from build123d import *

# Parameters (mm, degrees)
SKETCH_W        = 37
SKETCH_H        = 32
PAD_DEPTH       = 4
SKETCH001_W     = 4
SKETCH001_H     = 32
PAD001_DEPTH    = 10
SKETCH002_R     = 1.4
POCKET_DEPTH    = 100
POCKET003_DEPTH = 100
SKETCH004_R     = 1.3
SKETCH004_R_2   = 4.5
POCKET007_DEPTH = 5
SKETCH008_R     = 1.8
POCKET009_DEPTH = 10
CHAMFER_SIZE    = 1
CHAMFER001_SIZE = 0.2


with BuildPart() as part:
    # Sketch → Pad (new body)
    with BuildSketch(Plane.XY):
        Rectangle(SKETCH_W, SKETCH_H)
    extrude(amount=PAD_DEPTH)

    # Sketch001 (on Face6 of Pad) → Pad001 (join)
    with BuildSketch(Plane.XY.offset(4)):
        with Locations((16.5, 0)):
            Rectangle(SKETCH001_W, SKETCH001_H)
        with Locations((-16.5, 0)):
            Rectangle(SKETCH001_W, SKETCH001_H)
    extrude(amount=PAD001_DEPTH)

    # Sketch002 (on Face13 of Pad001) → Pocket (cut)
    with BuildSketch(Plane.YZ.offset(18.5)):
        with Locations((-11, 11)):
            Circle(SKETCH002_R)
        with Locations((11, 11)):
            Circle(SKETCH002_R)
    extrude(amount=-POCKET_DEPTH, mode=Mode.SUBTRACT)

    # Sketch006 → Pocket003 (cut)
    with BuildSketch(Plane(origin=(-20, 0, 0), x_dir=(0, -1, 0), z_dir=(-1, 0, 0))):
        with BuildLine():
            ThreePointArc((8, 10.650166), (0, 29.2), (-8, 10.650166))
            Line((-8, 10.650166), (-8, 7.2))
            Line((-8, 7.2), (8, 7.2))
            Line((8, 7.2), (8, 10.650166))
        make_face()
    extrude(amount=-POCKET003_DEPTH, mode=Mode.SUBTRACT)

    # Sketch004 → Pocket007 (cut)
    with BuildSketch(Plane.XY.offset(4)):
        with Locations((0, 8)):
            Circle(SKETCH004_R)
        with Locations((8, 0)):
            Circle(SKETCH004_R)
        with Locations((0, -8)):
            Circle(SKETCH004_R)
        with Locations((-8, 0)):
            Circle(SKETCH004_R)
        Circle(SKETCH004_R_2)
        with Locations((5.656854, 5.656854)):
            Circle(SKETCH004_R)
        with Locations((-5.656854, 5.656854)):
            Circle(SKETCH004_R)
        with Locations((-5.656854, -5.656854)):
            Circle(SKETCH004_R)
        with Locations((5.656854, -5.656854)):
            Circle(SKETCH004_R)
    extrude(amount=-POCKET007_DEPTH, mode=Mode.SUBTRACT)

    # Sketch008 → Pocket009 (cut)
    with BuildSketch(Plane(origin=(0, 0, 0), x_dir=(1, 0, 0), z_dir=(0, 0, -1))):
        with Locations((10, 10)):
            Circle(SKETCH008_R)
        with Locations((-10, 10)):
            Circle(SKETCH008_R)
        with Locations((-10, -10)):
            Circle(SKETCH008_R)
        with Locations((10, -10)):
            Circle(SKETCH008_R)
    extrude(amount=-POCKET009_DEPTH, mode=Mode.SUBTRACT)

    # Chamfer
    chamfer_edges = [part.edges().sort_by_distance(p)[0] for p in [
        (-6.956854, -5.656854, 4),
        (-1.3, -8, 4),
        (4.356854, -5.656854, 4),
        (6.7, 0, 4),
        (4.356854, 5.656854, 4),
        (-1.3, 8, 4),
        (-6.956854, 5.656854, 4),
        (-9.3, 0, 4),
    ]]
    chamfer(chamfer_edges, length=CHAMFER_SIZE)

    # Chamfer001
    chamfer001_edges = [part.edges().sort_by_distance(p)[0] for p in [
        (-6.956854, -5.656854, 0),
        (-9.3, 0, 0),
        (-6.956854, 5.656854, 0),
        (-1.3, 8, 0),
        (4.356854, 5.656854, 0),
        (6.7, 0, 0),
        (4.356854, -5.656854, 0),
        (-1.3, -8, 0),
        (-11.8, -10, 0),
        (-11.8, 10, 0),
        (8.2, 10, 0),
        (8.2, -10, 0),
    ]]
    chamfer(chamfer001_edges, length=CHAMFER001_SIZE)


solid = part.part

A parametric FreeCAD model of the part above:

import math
import FreeCAD as App
import Part
import Sketcher
Q = App.Units.Quantity


def edges_at(feature, points):
    """Names of the edges that pass closest to the given points."""
    edges = feature.Shape.Edges
    near = lambda p: min(range(len(edges)), key=lambda i: edges[i].distToShape(Part.Vertex(*p))[0])
    return sorted({f"Edge{near(p) + 1}" for p in points})


def add_polygon(sketch, points):
    """Adds a closed chain of lines whose ends are joined by coincident constraints."""
    first, n = sketch.GeometryCount, len(points)
    for a, b in zip(points, points[1:] + points[:1]):
        sketch.addGeometry(Part.LineSegment(App.Vector(*a, 0), App.Vector(*b, 0)), False)
    for i in range(n):
        sketch.addConstraint(Sketcher.Constraint("Coincident", first + i, 2, first + (i + 1) % n, 1))

doc = App.newDocument("Part")
params = doc.addObject("Spreadsheet::Sheet", "Params")
for row, (alias, value) in enumerate([
    ("sketch1_width", "37 mm"),
    ("sketch1_height", "32 mm"),
    ("pad1_length", "4 mm"),
    ("sketch2_width", "4 mm"),
    ("sketch2_height", "32 mm"),
    ("pad2_length", "10 mm"),
    ("sketch3_diameter", "2.8 mm"),
    ("pocket1_length", "100 mm"),
    ("sketch4_radius", "11 mm"),
    ("sketch4_width", "16 mm"),
    ("pocket2_length", "100 mm"),
    ("sketch5_diameter", "9 mm"),
    ("sketch5_diameter2", "2.6 mm"),
    ("pocket3_length", "5 mm"),
    ("sketch6_diameter", "3.6 mm"),
    ("pocket4_length", "10 mm"),
    ("chamfer_size", "1 mm"),
    ("chamfer2_size", "0.2 mm"),
], start=1):
    params.set(f"A{row}", alias)
    params.set(f"B{row}", "=" + value)
    params.setAlias(f"B{row}", alias)

body = doc.addObject("PartDesign::Body", "Body")

sketch1 = body.newObject("Sketcher::SketchObject", "Sketch")
sketch1.AttachmentSupport = (doc.getObject("XY_Plane"), [""])
sketch1.MapMode = "FlatFace"
add_polygon(sketch1, [(-18.5, 16), (-18.5, -16), (18.5, -16), (18.5, 16)])
sketch1.addConstraint(Sketcher.Constraint("Vertical", 0))
sketch1.addConstraint(Sketcher.Constraint("Horizontal", 1))
sketch1.addConstraint(Sketcher.Constraint("Vertical", 2))
sketch1.addConstraint(Sketcher.Constraint("Horizontal", 3))
sketch1.addConstraint(Sketcher.Constraint("Symmetric", 0, 2, 2, 2, -1, 1))
sketch1.addConstraint(Sketcher.Constraint("DistanceX", 1, 1, 1, 2, Q("37 mm")))
sketch1.addConstraint(Sketcher.Constraint("DistanceY", 0, 2, 0, 1, Q("32 mm")))
sketch1.setExpression("Constraints[9]", "Params.sketch1_width")
sketch1.setExpression("Constraints[10]", "Params.sketch1_height")
pad1 = body.newObject("PartDesign::Pad", "Pad")
pad1.Profile = sketch1
pad1.setExpression("Length", "Params.pad1_length")

sketch2 = body.newObject("Sketcher::SketchObject", "Sketch001")
sketch2.AttachmentSupport = (doc.getObject("XY_Plane"), [""])
sketch2.MapMode = "FlatFace"
sketch2.AttachmentOffset = App.Placement(App.Vector(0, 0, 4), App.Rotation())
add_polygon(sketch2, [(14.5, 16), (14.5, -16), (18.5, -16), (18.5, 16)])
add_polygon(sketch2, [(-18.5, 16), (-18.5, -16), (-14.5, -16), (-14.5, 16)])
sketch2.addConstraint(Sketcher.Constraint("Vertical", 0))
sketch2.addConstraint(Sketcher.Constraint("Horizontal", 1))
sketch2.addConstraint(Sketcher.Constraint("Vertical", 2))
sketch2.addConstraint(Sketcher.Constraint("Horizontal", 3))
sketch2.addConstraint(Sketcher.Constraint("Vertical", 4))
sketch2.addConstraint(Sketcher.Constraint("Horizontal", 5))
sketch2.addConstraint(Sketcher.Constraint("Vertical", 6))
sketch2.addConstraint(Sketcher.Constraint("Horizontal", 7))
sketch2.addConstraint(Sketcher.Constraint("Symmetric", 2, 2, 4, 2, -1, 1))
sketch2.addConstraint(Sketcher.Constraint("Symmetric", 0, 2, 6, 2, -1, 1))
sketch2.addConstraint(Sketcher.Constraint("Horizontal", 1, 2, 4, 2))
sketch2.addConstraint(Sketcher.Constraint("DistanceX", 1, 1, 1, 2, Q("4 mm")))
sketch2.addConstraint(Sketcher.Constraint("DistanceY", 0, 2, 0, 1, Q("32 mm")))
sketch2.addConstraint(Sketcher.Constraint("DistanceX", 4, 2, 0, 2, Q("33 mm")))
sketch2.setExpression("Constraints[19]", "Params.sketch2_width")
sketch2.setExpression("Constraints[20]", "Params.sketch2_height")
pad2 = body.newObject("PartDesign::Pad", "Pad001")
pad2.Profile = sketch2
pad2.setExpression("Length", "Params.pad2_length")

sketch3 = body.newObject("Sketcher::SketchObject", "Sketch002")
sketch3.AttachmentSupport = (doc.getObject("YZ_Plane"), [""])
sketch3.MapMode = "FlatFace"
sketch3.AttachmentOffset = App.Placement(App.Vector(0, 0, 18.5), App.Rotation())
sketch3.addGeometry(Part.Circle(App.Vector(-11, 11, 0), App.Vector(0, 0, 1), 1.4), False)
sketch3.addGeometry(Part.Circle(App.Vector(11, 11, 0), App.Vector(0, 0, 1), 1.4), False)
sketch3.addConstraint(Sketcher.Constraint("Equal", 0, 1))
sketch3.addConstraint(Sketcher.Constraint("Symmetric", 0, 3, 1, 3, -2))
sketch3.addConstraint(Sketcher.Constraint("Diameter", 0, Q("2.8 mm")))
sketch3.addConstraint(Sketcher.Constraint("DistanceX", 0, 3, -1, 1, Q("11 mm")))
sketch3.addConstraint(Sketcher.Constraint("DistanceY", -1, 1, 0, 3, Q("11 mm")))
sketch3.setExpression("Constraints[2]", "Params.sketch3_diameter")
pocket1 = body.newObject("PartDesign::Pocket", "Pocket")
pocket1.Profile = sketch3
pocket1.setExpression("Length", "Params.pocket1_length")

sketch4 = body.newObject("Sketcher::SketchObject", "Sketch003")
sketch4.AttachmentSupport = (doc.getObject("YZ_Plane"), [""])
sketch4.MapMode = "FlatFace"
sketch4.AttachmentOffset = App.Placement(App.Vector(0, 0, -20), App.Rotation())
sketch4.addGeometry(Part.ArcOfCircle(Part.Circle(App.Vector(0, 18.2, 0), App.Vector(0, 0, 1), 11), math.radians(-43.341757), math.radians(223.341757)), False)
sketch4.addGeometry(Part.LineSegment(App.Vector(8, 10.650166, 0), App.Vector(8, 7.2, 0)), False)
sketch4.addGeometry(Part.LineSegment(App.Vector(8, 7.2, 0), App.Vector(-8, 7.2, 0)), False)
sketch4.addGeometry(Part.LineSegment(App.Vector(-8, 7.2, 0), App.Vector(-8, 10.650166, 0)), False)
sketch4.addConstraint(Sketcher.Constraint("Coincident", 0, 1, 1, 1))
sketch4.addConstraint(Sketcher.Constraint("Coincident", 1, 2, 2, 1))
sketch4.addConstraint(Sketcher.Constraint("Coincident", 2, 2, 3, 1))
sketch4.addConstraint(Sketcher.Constraint("Coincident", 3, 2, 0, 2))
sketch4.addConstraint(Sketcher.Constraint("Vertical", 1))
sketch4.addConstraint(Sketcher.Constraint("Horizontal", 2))
sketch4.addConstraint(Sketcher.Constraint("Vertical", 3))
sketch4.addConstraint(Sketcher.Constraint("Symmetric", 0, 1, 3, 2, -2))
sketch4.addConstraint(Sketcher.Constraint("Radius", 0, Q("11 mm")))
sketch4.addConstraint(Sketcher.Constraint("DistanceX", 2, 2, 2, 1, Q("16 mm")))
sketch4.addConstraint(Sketcher.Constraint("DistanceY", 1, 2, 0, 3, Q("11 mm")))
sketch4.addConstraint(Sketcher.Constraint("DistanceY", -1, 1, 0, 3, Q("18.2 mm")))
sketch4.setExpression("Constraints[8]", "Params.sketch4_radius")
sketch4.setExpression("Constraints[9]", "Params.sketch4_width")
pocket2 = body.newObject("PartDesign::Pocket", "Pocket001")
pocket2.Profile = sketch4
pocket2.setExpression("Length", "Params.pocket2_length")
pocket2.Reversed = True

sketch5 = body.newObject("Sketcher::SketchObject", "Sketch004")
sketch5.AttachmentSupport = (doc.getObject("XY_Plane"), [""])
sketch5.MapMode = "FlatFace"
sketch5.AttachmentOffset = App.Placement(App.Vector(0, 0, 4), App.Rotation())
sketch5.addGeometry(Part.Circle(App.Vector(0, 8, 0), App.Vector(0, 0, 1), 1.3), False)
sketch5.addGeometry(Part.Circle(App.Vector(8, 0, 0), App.Vector(0, 0, 1), 1.3), False)
sketch5.addGeometry(Part.Circle(App.Vector(0, -8, 0), App.Vector(0, 0, 1), 1.3), False)
sketch5.addGeometry(Part.Circle(App.Vector(-8, 0, 0), App.Vector(0, 0, 1), 1.3), False)
sketch5.addGeometry(Part.Circle(App.Vector(0, 0, 0), App.Vector(0, 0, 1), 4.5), False)
sketch5.addGeometry(Part.Circle(App.Vector(5.656854, 5.656854, 0), App.Vector(0, 0, 1), 1.3), False)
sketch5.addGeometry(Part.Circle(App.Vector(-5.656854, 5.656854, 0), App.Vector(0, 0, 1), 1.3), False)
sketch5.addGeometry(Part.Circle(App.Vector(-5.656854, -5.656854, 0), App.Vector(0, 0, 1), 1.3), False)
sketch5.addGeometry(Part.Circle(App.Vector(5.656854, -5.656854, 0), App.Vector(0, 0, 1), 1.3), False)
sketch5.addConstraint(Sketcher.Constraint("Coincident", 4, 3, -1, 1))
sketch5.addConstraint(Sketcher.Constraint("Equal", 0, 1))
sketch5.addConstraint(Sketcher.Constraint("Equal", 1, 2))
sketch5.addConstraint(Sketcher.Constraint("Equal", 2, 3))
sketch5.addConstraint(Sketcher.Constraint("Equal", 3, 5))
sketch5.addConstraint(Sketcher.Constraint("Equal", 5, 6))
sketch5.addConstraint(Sketcher.Constraint("Equal", 6, 7))
sketch5.addConstraint(Sketcher.Constraint("Equal", 7, 8))
sketch5.addConstraint(Sketcher.Constraint("Symmetric", 0, 3, 2, 3, -1, 1))
sketch5.addConstraint(Sketcher.Constraint("Symmetric", 1, 3, 3, 3, -1, 1))
sketch5.addConstraint(Sketcher.Constraint("Symmetric", 5, 3, 7, 3, -1, 1))
sketch5.addConstraint(Sketcher.Constraint("Symmetric", 6, 3, 8, 3, -1, 1))
sketch5.addConstraint(Sketcher.Constraint("Symmetric", 5, 3, 6, 3, -2))
sketch5.addConstraint(Sketcher.Constraint("PointOnObject", 0, 3, -2))
sketch5.addConstraint(Sketcher.Constraint("PointOnObject", 1, 3, -1))
sketch5.addConstraint(Sketcher.Constraint("Diameter", 4, Q("9 mm")))
sketch5.addConstraint(Sketcher.Constraint("Diameter", 0, Q("2.6 mm")))
sketch5.addConstraint(Sketcher.Constraint("DistanceY", -1, 1, 0, 3, Q("8 mm")))
sketch5.addConstraint(Sketcher.Constraint("DistanceX", -1, 1, 1, 3, Q("8 mm")))
sketch5.addConstraint(Sketcher.Constraint("DistanceX", -1, 1, 5, 3, Q("5.656854 mm")))
sketch5.addConstraint(Sketcher.Constraint("DistanceY", -1, 1, 5, 3, Q("5.656854 mm")))
sketch5.setExpression("Constraints[15]", "Params.sketch5_diameter")
sketch5.setExpression("Constraints[16]", "Params.sketch5_diameter2")
pocket3 = body.newObject("PartDesign::Pocket", "Pocket002")
pocket3.Profile = sketch5
pocket3.setExpression("Length", "Params.pocket3_length")

sketch6 = body.newObject("Sketcher::SketchObject", "Sketch005")
sketch6.AttachmentSupport = (doc.getObject("XY_Plane"), [""])
sketch6.MapMode = "FlatFace"
sketch6.addGeometry(Part.Circle(App.Vector(10, -10, 0), App.Vector(0, 0, 1), 1.8), False)
sketch6.addGeometry(Part.Circle(App.Vector(-10, -10, 0), App.Vector(0, 0, 1), 1.8), False)
sketch6.addGeometry(Part.Circle(App.Vector(-10, 10, 0), App.Vector(0, 0, 1), 1.8), False)
sketch6.addGeometry(Part.Circle(App.Vector(10, 10, 0), App.Vector(0, 0, 1), 1.8), False)
sketch6.addConstraint(Sketcher.Constraint("Equal", 0, 1))
sketch6.addConstraint(Sketcher.Constraint("Equal", 1, 2))
sketch6.addConstraint(Sketcher.Constraint("Equal", 2, 3))
sketch6.addConstraint(Sketcher.Constraint("Symmetric", 0, 3, 2, 3, -1, 1))
sketch6.addConstraint(Sketcher.Constraint("Symmetric", 1, 3, 3, 3, -1, 1))
sketch6.addConstraint(Sketcher.Constraint("Symmetric", 0, 3, 1, 3, -2))
sketch6.addConstraint(Sketcher.Constraint("Diameter", 0, Q("3.6 mm")))
sketch6.addConstraint(Sketcher.Constraint("DistanceX", -1, 1, 0, 3, Q("10 mm")))
sketch6.addConstraint(Sketcher.Constraint("DistanceY", 0, 3, -1, 1, Q("10 mm")))
sketch6.setExpression("Constraints[6]", "Params.sketch6_diameter")
pocket4 = body.newObject("PartDesign::Pocket", "Pocket003")
pocket4.Profile = sketch6
pocket4.setExpression("Length", "Params.pocket4_length")
pocket4.Reversed = True
doc.recompute()

chamfer = body.newObject("PartDesign::Chamfer", "Chamfer")
chamfer.Base = (pocket4, edges_at(pocket4, [
    (-6.957, -5.657, 4),
    (-1.3, -8, 4),
    (4.357, -5.657, 4),
    (6.7, 0, 4),
    (4.357, 5.657, 4),
    (-1.3, 8, 4),
    (-6.957, 5.657, 4),
    (-9.3, 0, 4),
]))
chamfer.setExpression("Size", "Params.chamfer_size")
doc.recompute()

chamfer2 = body.newObject("PartDesign::Chamfer", "Chamfer001")
chamfer2.Base = (chamfer, edges_at(chamfer, [
    (-6.957, -5.657, 0),
    (-9.3, 0, 0),
    (-6.957, 5.657, 0),
    (-1.3, 8, 0),
    (4.357, 5.657, 0),
    (6.7, 0, 0),
    (4.357, -5.657, 0),
    (-1.3, -8, 0),
    (-11.8, -10, 0),
    (-11.8, 10, 0),
    (8.2, 10, 0),
    (8.2, -10, 0),
]))
chamfer2.setExpression("Size", "Params.chamfer2_size")

doc.recompute()
